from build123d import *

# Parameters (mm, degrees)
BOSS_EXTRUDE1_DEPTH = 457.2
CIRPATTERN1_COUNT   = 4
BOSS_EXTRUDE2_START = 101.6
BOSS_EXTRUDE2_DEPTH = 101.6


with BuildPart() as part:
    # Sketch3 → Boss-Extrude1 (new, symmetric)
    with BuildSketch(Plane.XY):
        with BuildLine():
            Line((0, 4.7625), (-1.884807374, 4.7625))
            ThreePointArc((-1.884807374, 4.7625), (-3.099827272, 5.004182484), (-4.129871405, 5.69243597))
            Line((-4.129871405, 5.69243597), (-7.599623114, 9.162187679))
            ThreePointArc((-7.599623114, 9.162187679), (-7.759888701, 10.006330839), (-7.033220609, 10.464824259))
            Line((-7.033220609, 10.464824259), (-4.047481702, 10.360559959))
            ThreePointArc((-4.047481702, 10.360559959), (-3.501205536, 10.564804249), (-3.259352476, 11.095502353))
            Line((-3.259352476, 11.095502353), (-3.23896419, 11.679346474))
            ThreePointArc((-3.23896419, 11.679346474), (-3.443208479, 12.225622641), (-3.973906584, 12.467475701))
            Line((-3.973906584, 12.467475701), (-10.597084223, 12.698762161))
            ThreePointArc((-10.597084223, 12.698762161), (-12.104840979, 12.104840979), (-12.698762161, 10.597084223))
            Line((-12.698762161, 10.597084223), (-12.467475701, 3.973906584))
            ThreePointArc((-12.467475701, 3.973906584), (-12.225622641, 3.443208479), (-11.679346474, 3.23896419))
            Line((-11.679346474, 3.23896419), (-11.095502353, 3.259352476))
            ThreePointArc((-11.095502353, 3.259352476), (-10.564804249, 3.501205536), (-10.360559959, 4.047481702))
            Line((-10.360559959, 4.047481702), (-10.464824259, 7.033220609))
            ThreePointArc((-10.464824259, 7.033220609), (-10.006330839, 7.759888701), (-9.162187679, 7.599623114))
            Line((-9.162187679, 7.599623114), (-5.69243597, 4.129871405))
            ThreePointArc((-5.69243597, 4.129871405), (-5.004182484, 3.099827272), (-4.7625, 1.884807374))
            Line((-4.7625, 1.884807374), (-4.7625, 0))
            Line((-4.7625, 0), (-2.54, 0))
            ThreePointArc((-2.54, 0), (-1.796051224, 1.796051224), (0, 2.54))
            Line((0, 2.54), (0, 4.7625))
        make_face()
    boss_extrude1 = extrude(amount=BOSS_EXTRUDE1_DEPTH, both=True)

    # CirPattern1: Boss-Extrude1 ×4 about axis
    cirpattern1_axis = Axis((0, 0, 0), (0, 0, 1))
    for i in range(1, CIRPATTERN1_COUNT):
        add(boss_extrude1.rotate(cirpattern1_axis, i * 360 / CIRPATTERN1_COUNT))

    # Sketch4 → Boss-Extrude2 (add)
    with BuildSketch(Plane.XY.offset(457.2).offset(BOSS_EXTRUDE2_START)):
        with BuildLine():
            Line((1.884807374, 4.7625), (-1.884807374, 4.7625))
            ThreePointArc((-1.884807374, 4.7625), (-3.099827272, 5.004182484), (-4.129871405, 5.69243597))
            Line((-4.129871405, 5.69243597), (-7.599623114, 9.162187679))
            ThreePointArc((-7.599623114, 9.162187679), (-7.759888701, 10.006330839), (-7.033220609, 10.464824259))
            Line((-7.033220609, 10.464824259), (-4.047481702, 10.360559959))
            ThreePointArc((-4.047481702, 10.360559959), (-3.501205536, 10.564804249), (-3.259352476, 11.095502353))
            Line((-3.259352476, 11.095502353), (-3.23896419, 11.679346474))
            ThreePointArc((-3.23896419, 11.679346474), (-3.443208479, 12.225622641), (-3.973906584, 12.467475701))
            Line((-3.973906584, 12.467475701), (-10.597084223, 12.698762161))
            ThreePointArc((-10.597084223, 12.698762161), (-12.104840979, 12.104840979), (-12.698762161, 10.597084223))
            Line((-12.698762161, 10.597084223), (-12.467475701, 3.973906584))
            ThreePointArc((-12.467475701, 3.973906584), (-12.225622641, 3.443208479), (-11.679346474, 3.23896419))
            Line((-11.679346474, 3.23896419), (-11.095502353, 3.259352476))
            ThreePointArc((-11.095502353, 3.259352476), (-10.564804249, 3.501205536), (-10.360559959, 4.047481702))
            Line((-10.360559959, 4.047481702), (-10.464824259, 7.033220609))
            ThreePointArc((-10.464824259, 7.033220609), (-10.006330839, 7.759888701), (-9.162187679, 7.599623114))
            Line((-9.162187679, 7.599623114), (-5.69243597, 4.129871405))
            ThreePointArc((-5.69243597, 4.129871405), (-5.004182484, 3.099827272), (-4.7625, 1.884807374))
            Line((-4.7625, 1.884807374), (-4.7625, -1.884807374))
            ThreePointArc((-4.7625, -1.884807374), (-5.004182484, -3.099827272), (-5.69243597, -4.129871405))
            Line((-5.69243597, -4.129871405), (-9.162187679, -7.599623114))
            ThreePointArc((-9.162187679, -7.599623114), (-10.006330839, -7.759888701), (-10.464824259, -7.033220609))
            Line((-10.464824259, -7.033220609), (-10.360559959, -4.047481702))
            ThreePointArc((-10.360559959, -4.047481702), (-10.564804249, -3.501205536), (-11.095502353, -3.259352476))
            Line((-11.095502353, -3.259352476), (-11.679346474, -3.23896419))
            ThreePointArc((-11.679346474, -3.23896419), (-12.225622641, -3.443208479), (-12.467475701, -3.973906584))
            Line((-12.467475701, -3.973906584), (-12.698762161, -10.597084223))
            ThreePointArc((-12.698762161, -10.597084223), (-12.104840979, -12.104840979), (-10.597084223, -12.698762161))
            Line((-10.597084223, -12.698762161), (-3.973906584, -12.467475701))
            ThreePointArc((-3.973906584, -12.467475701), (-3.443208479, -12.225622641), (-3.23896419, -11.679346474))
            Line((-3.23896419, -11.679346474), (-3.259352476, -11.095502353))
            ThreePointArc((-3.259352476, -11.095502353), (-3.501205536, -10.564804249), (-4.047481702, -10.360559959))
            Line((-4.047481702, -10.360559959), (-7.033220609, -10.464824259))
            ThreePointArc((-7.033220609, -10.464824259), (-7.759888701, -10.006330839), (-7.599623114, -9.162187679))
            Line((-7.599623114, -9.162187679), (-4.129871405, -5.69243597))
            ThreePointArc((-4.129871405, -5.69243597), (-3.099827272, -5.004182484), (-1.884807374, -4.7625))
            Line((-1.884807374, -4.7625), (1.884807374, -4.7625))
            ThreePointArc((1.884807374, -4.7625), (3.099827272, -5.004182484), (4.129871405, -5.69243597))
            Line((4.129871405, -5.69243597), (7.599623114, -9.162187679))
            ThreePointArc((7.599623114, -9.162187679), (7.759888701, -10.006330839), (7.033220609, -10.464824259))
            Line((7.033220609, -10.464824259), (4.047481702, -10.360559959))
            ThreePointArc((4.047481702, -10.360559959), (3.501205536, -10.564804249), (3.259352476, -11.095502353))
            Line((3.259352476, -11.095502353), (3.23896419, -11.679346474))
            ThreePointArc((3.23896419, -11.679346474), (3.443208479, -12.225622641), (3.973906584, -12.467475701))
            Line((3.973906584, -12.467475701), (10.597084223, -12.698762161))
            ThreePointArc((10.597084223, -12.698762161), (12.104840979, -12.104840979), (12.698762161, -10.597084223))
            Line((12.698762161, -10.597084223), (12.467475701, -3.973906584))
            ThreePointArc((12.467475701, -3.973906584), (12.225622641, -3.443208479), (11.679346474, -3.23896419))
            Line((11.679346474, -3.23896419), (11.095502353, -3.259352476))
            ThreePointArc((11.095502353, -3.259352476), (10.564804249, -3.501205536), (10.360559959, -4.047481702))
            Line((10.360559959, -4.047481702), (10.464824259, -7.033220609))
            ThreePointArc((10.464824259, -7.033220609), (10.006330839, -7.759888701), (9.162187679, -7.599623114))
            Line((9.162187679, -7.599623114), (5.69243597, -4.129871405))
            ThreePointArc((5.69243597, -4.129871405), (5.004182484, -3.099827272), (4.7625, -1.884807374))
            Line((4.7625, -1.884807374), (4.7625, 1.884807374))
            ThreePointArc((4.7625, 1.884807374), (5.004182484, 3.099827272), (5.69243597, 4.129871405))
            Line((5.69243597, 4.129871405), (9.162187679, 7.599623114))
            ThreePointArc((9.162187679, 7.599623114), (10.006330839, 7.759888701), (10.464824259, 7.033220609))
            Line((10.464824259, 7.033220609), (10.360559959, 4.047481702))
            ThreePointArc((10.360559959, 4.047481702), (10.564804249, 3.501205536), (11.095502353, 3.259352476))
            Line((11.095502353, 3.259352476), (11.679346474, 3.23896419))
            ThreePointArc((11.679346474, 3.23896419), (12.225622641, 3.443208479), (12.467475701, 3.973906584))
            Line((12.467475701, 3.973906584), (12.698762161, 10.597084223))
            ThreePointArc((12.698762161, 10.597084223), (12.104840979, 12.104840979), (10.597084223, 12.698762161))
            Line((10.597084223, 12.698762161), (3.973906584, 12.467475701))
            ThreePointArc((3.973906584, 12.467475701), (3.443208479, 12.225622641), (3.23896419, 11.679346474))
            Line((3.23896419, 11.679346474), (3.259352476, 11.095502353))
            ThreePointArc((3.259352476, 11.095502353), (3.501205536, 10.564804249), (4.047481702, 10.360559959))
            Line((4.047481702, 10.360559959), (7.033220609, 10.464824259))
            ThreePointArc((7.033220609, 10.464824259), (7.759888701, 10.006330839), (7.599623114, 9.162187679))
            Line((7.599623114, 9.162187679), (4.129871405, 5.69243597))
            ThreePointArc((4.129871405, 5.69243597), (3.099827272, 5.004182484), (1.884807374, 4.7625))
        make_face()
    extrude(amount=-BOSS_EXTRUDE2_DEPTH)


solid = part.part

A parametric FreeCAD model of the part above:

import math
import FreeCAD as App
import Part
import Sketcher

V = App.Vector
Q = App.Units.Quantity

doc = App.newDocument("Part")
params = doc.addObject("Spreadsheet::Sheet", "Params")
for row, (alias, value) in enumerate([
    ("sketch1_radius", "0.1 in"),
    ("sketch1_radius2", "0.03 in"),
    ("sketch1_radius3", "0.08 in"),
    ("sketch1_radius4", "0.125 in"),
    ("sketch1_length", "0.023 in"),
    ("pad1_length", "36 in"),
    ("sketch2_radius", "0.03 in"),
    ("sketch2_radius2", "0.08 in"),
    ("sketch2_radius3", "0.125 in"),
    ("sketch2_length", "0.023 in"),
    ("pad2_length", "4 in"),
], start=1):
    params.set(f"A{row}", alias)
    params.set(f"B{row}", "=" + value)
    params.setAlias(f"B{row}", alias)

body = doc.addObject("PartDesign::Body", "Body")

# Sketch on XY plane
sketch1 = body.newObject("Sketcher::SketchObject", "Sketch")
sketch1.AttachmentSupport = (doc.getObject("XY_Plane"), [""])
sketch1.MapMode = "FlatFace"
sketch1.addGeometry([
    Part.LineSegment(V(0, 4.8, 0), V(-1.9, 4.8, 0)),  # 0
    Part.ArcOfCircle(Part.Circle(V(-1.9, 7.9, 0), V(0, 0, 1), 3.2), math.radians(-135), math.radians(-90)),  # 1
    Part.LineSegment(V(-4.1, 5.7, 0), V(-7.6, 9.2, 0)),  # 2
    Part.ArcOfCircle(Part.Circle(V(-7.1, 9.7, 0), V(0, 0, 1), 0.8), math.radians(88), math.radians(225)),  # 3
    Part.LineSegment(V(-7, 10.5, 0), V(-4, 10.4, 0)),  # 4
    Part.ArcOfCircle(Part.Circle(V(-4, 11.1, 0), V(0, 0, 1), 0.8), math.radians(-92), math.radians(-2)),  # 5
    Part.LineSegment(V(-3.3, 11.1, 0), V(-3.2, 11.7, 0)),  # 6
    Part.ArcOfCircle(Part.Circle(V(-4, 11.7, 0), V(0, 0, 1), 0.8), math.radians(-2), math.radians(88)),  # 7
    Part.LineSegment(V(-4, 12.5, 0), V(-10.6, 12.7, 0)),  # 8
    Part.ArcOfCircle(Part.Circle(V(-10.7, 10.7, 0), V(0, 0, 1), 2), math.radians(88), math.radians(182)),  # 9
    Part.LineSegment(V(-12.7, 10.6, 0), V(-12.5, 4, 0)),  # 10
    Part.ArcOfCircle(Part.Circle(V(-11.7, 4, 0), V(0, 0, 1), 0.8), math.radians(-178), math.radians(-88)),  # 11
    Part.LineSegment(V(-11.7, 3.2, 0), V(-11.1, 3.3, 0)),  # 12
    Part.ArcOfCircle(Part.Circle(V(-11.1, 4, 0), V(0, 0, 1), 0.8), math.radians(-88), math.radians(2)),  # 13
    Part.LineSegment(V(-10.4, 4, 0), V(-10.5, 7, 0)),  # 14
    Part.ArcOfCircle(Part.Circle(V(-9.7, 7.1, 0), V(0, 0, 1), 0.8), math.radians(45), math.radians(182)),  # 15
    Part.LineSegment(V(-9.2, 7.6, 0), V(-5.7, 4.1, 0)),  # 16
    Part.ArcOfCircle(Part.Circle(V(-7.9, 1.9, 0), V(0, 0, 1), 3.2), math.radians(0), math.radians(45)),  # 17
    Part.LineSegment(V(-4.8, 1.9, 0), V(-4.8, 0, 0)),  # 18
    Part.LineSegment(V(-4.8, 0, 0), V(-2.5, 0, 0)),  # 19
    Part.ArcOfCircle(Part.Circle(V(0, 0, 0), V(0, 0, 1), 2.5), math.radians(90), math.radians(180)),  # 20
    Part.LineSegment(V(0, 2.5, 0), V(0, 4.8, 0)),  # 21
], False)
sketch1.addConstraint([
    Sketcher.Constraint("Tangent", 0, 2, 1, 2),
    Sketcher.Constraint("Tangent", 1, 1, 2, 1),
    Sketcher.Constraint("Tangent", 2, 2, 3, 2),
    Sketcher.Constraint("Tangent", 3, 1, 4, 1),
    Sketcher.Constraint("Tangent", 4, 2, 5, 1),
    Sketcher.Constraint("Tangent", 5, 2, 6, 1),
    Sketcher.Constraint("Tangent", 6, 2, 7, 1),
    Sketcher.Constraint("Tangent", 7, 2, 8, 1),
    Sketcher.Constraint("Tangent", 8, 2, 9, 1),
    Sketcher.Constraint("Tangent", 9, 2, 10, 1),
    Sketcher.Constraint("Tangent", 10, 2, 11, 1),
    Sketcher.Constraint("Tangent", 11, 2, 12, 1),
    Sketcher.Constraint("Tangent", 12, 2, 13, 1),
    Sketcher.Constraint("Tangent", 13, 2, 14, 1),
    Sketcher.Constraint("Tangent", 14, 2, 15, 2),
    Sketcher.Constraint("Tangent", 15, 1, 16, 1),
    Sketcher.Constraint("Tangent", 16, 2, 17, 2),
    Sketcher.Constraint("Tangent", 17, 1, 18, 1),
    Sketcher.Constraint("Coincident", 18, 2, 19, 1),
    Sketcher.Constraint("Coincident", 19, 2, 20, 2),
    Sketcher.Constraint("Coincident", 20, 1, 21, 1),
    Sketcher.Constraint("Coincident", 21, 2, 0, 1),
    Sketcher.Constraint("Horizontal", 0),
    Sketcher.Constraint("Vertical", 18),
    Sketcher.Constraint("Horizontal", 19),
    Sketcher.Constraint("Vertical", 21),
    Sketcher.Constraint("Coincident", 20, 3, -1, 1),
    Sketcher.Constraint("Equal", 5, 7),
    Sketcher.Constraint("Equal", 7, 11),
    Sketcher.Constraint("Equal", 11, 13),
    Sketcher.Constraint("Equal", 3, 15),
    Sketcher.Constraint("Equal", 1, 17),
    Sketcher.Constraint("PointOnObject", 18, 2, -1),
    Sketcher.Constraint("PointOnObject", 20, 1, -2),
    Sketcher.Constraint("Perpendicular", 4, 6),
    Sketcher.Constraint("Perpendicular", 6, 8),
    Sketcher.Constraint("Perpendicular", 10, 12),
    Sketcher.Constraint("Perpendicular", 12, 14),
    Sketcher.Constraint("Parallel", 2, 16),
    Sketcher.Constraint("Equal", 0, 18),
    Sketcher.Constraint("Equal", 19, 21),
    Sketcher.Constraint("Equal", 8, 10),
    Sketcher.Constraint("Equal", 6, 12),
    Sketcher.Constraint("Equal", 4, 14),
    Sketcher.Constraint("Equal", 2, 16),
    Sketcher.Constraint("Radius", 20, Q("0.1 in")),
    Sketcher.Constraint("Radius", 5, Q("0.03 in")),
    Sketcher.Constraint("Radius", 9, Q("0.08 in")),
    Sketcher.Constraint("Angle", 2, Q("135 deg")),
    Sketcher.Constraint("Angle", 4, Q("-2 deg")),
    Sketcher.Constraint("Radius", 1, Q("0.125 in")),
    Sketcher.Constraint("DistanceX", 9, 3, -1, 1, Q("0.42 in")),
    Sketcher.Constraint("Distance", 6, Q("0.023 in")),
    Sketcher.Constraint("DistanceX", 19, 1, 19, 2, Q("0.0875 in")),
    Sketcher.Constraint("Radius", 3, Q("0.763339 mm")),
    Sketcher.Constraint("DistanceY", 11, 3, 1, 3, Q("0.155 in")),
    Sketcher.Constraint("DistanceY", 15, 3, 8, 2, Q("5.638901 mm")),
])
sketch1.setExpression("Constraints[45]", "Params.sketch1_radius")
sketch1.setExpression("Constraints[46]", "Params.sketch1_radius2")
sketch1.setExpression("Constraints[47]", "Params.sketch1_radius3")
sketch1.setExpression("Constraints[50]", "Params.sketch1_radius4")
sketch1.setExpression("Constraints[52]", "Params.sketch1_length")
pad1 = body.newObject("PartDesign::Pad", "Pad")
pad1.Profile = sketch1
pad1.setExpression("Length", "Params.pad1_length")
pad1.Midplane = True
doc.recompute()

polarpattern = body.newObject("PartDesign::PolarPattern", "PolarPattern")
polarpattern.Originals = [pad1]
polarpattern.Axis = (doc.getObject("Z_Axis"), [""])
polarpattern.Angle = 360
polarpattern.Occurrences = 4
body.Tip = polarpattern

# Sketch on XY plane
sketch2 = body.newObject("Sketcher::SketchObject", "Sketch001")
sketch2.AttachmentSupport = (doc.getObject("XY_Plane"), [""])
sketch2.MapMode = "FlatFace"
sketch2.AttachmentOffset = App.Placement(V(0, 0, 22 * 25.4), App.Rotation())
sketch2.addGeometry([
    Part.LineSegment(V(1.9, 4.8, 0), V(-1.9, 4.8, 0)),  # 0
    Part.ArcOfCircle(Part.Circle(V(-1.9, 7.9, 0), V(0, 0, 1), 3.2), math.radians(-135), math.radians(-90)),  # 1
    Part.LineSegment(V(-4.1, 5.7, 0), V(-7.6, 9.2, 0)),  # 2
    Part.ArcOfCircle(Part.Circle(V(-7.1, 9.7, 0), V(0, 0, 1), 0.8), math.radians(88), math.radians(225)),  # 3
    Part.LineSegment(V(-7, 10.5, 0), V(-4, 10.4, 0)),  # 4
    Part.ArcOfCircle(Part.Circle(V(-4, 11.1, 0), V(0, 0, 1), 0.8), math.radians(-92), math.radians(-2)),  # 5
    Part.LineSegment(V(-3.3, 11.1, 0), V(-3.2, 11.7, 0)),  # 6
    Part.ArcOfCircle(Part.Circle(V(-4, 11.7, 0), V(0, 0, 1), 0.8), math.radians(-2), math.radians(88)),  # 7
    Part.LineSegment(V(-4, 12.5, 0), V(-10.6, 12.7, 0)),  # 8
    Part.ArcOfCircle(Part.Circle(V(-10.7, 10.7, 0), V(0, 0, 1), 2), math.radians(88), math.radians(182)),  # 9
    Part.LineSegment(V(-12.7, 10.6, 0), V(-12.5, 4, 0)),  # 10
    Part.ArcOfCircle(Part.Circle(V(-11.7, 4, 0), V(0, 0, 1), 0.8), math.radians(-178), math.radians(-88)),  # 11
    Part.LineSegment(V(-11.7, 3.2, 0), V(-11.1, 3.3, 0)),  # 12
    Part.ArcOfCircle(Part.Circle(V(-11.1, 4, 0), V(0, 0, 1), 0.8), math.radians(-88), math.radians(2)),  # 13
    Part.LineSegment(V(-10.4, 4, 0), V(-10.5, 7, 0)),  # 14
    Part.ArcOfCircle(Part.Circle(V(-9.7, 7.1, 0), V(0, 0, 1), 0.8), math.radians(45), math.radians(182)),  # 15
    Part.LineSegment(V(-9.2, 7.6, 0), V(-5.7, 4.1, 0)),  # 16
    Part.ArcOfCircle(Part.Circle(V(-7.9, 1.9, 0), V(0, 0, 1), 3.2), math.radians(0), math.radians(45)),  # 17
    Part.LineSegment(V(-4.8, 1.9, 0), V(-4.8, -1.9, 0)),  # 18
    Part.ArcOfCircle(Part.Circle(V(-7.9, -1.9, 0), V(0, 0, 1), 3.2), math.radians(-45), math.radians(0)),  # 19
    Part.LineSegment(V(-5.7, -4.1, 0), V(-9.2, -7.6, 0)),  # 20
    Part.ArcOfCircle(Part.Circle(V(-9.7, -7.1, 0), V(0, 0, 1), 0.8), math.radians(178), math.radians(315)),  # 21
    Part.LineSegment(V(-10.5, -7, 0), V(-10.4, -4, 0)),  # 22
    Part.ArcOfCircle(Part.Circle(V(-11.1, -4, 0), V(0, 0, 1), 0.8), math.radians(-2), math.radians(88)),  # 23
    Part.LineSegment(V(-11.1, -3.3, 0), V(-11.7, -3.2, 0)),  # 24
    Part.ArcOfCircle(Part.Circle(V(-11.7, -4, 0), V(0, 0, 1), 0.8), math.radians(88), math.radians(178)),  # 25
    Part.LineSegment(V(-12.5, -4, 0), V(-12.7, -10.6, 0)),  # 26
    Part.ArcOfCircle(Part.Circle(V(-10.7, -10.7, 0), V(0, 0, 1), 2), math.radians(178), math.radians(272)),  # 27
    Part.LineSegment(V(-10.6, -12.7, 0), V(-4, -12.5, 0)),  # 28
    Part.ArcOfCircle(Part.Circle(V(-4, -11.7, 0), V(0, 0, 1), 0.8), math.radians(-88), math.radians(2)),  # 29
    Part.LineSegment(V(-3.2, -11.7, 0), V(-3.3, -11.1, 0)),  # 30
    Part.ArcOfCircle(Part.Circle(V(-4, -11.1, 0), V(0, 0, 1), 0.8), math.radians(2), math.radians(92)),  # 31
    Part.LineSegment(V(-4, -10.4, 0), V(-7, -10.5, 0)),  # 32
    Part.ArcOfCircle(Part.Circle(V(-7.1, -9.7, 0), V(0, 0, 1), 0.8), math.radians(135), math.radians(272)),  # 33
    Part.LineSegment(V(-7.6, -9.2, 0), V(-4.1, -5.7, 0)),  # 34
    Part.ArcOfCircle(Part.Circle(V(-1.9, -7.9, 0), V(0, 0, 1), 3.2), math.radians(90), math.radians(135)),  # 35
    Part.LineSegment(V(-1.9, -4.8, 0), V(1.9, -4.8, 0)),  # 36
    Part.ArcOfCircle(Part.Circle(V(1.9, -7.9, 0), V(0, 0, 1), 3.2), math.radians(45), math.radians(90)),  # 37
    Part.LineSegment(V(4.1, -5.7, 0), V(7.6, -9.2, 0)),  # 38
    Part.ArcOfCircle(Part.Circle(V(7.1, -9.7, 0), V(0, 0, 1), 0.8), math.radians(-92), math.radians(45)),  # 39
    Part.LineSegment(V(7, -10.5, 0), V(4, -10.4, 0)),  # 40
    Part.ArcOfCircle(Part.Circle(V(4, -11.1, 0), V(0, 0, 1), 0.8), math.radians(88), math.radians(178)),  # 41
    Part.LineSegment(V(3.3, -11.1, 0), V(3.2, -11.7, 0)),  # 42
    Part.ArcOfCircle(Part.Circle(V(4, -11.7, 0), V(0, 0, 1), 0.8), math.radians(178), math.radians(268)),  # 43
    Part.LineSegment(V(4, -12.5, 0), V(10.6, -12.7, 0)),  # 44
    Part.ArcOfCircle(Part.Circle(V(10.7, -10.7, 0), V(0, 0, 1), 2), math.radians(-92), math.radians(2)),  # 45
    Part.LineSegment(V(12.7, -10.6, 0), V(12.5, -4, 0)),  # 46
    Part.ArcOfCircle(Part.Circle(V(11.7, -4, 0), V(0, 0, 1), 0.8), math.radians(2), math.radians(92)),  # 47
    Part.LineSegment(V(11.7, -3.2, 0), V(11.1, -3.3, 0)),  # 48
    Part.ArcOfCircle(Part.Circle(V(11.1, -4, 0), V(0, 0, 1), 0.8), math.radians(92), math.radians(182)),  # 49
    Part.LineSegment(V(10.4, -4, 0), V(10.5, -7, 0)),  # 50
    Part.ArcOfCircle(Part.Circle(V(9.7, -7.1, 0), V(0, 0, 1), 0.8), math.radians(-135), math.radians(2)),  # 51
    Part.LineSegment(V(9.2, -7.6, 0), V(5.7, -4.1, 0)),  # 52
    Part.ArcOfCircle(Part.Circle(V(7.9, -1.9, 0), V(0, 0, 1), 3.2), math.radians(180), math.radians(225)),  # 53
    Part.LineSegment(V(4.8, -1.9, 0), V(4.8, 1.9, 0)),  # 54
    Part.ArcOfCircle(Part.Circle(V(7.9, 1.9, 0), V(0, 0, 1), 3.2), math.radians(135), math.radians(180)),  # 55
    Part.LineSegment(V(5.7, 4.1, 0), V(9.2, 7.6, 0)),  # 56
    Part.ArcOfCircle(Part.Circle(V(9.7, 7.1, 0), V(0, 0, 1), 0.8), math.radians(-2), math.radians(135)),  # 57
    Part.LineSegment(V(10.5, 7, 0), V(10.4, 4, 0)),  # 58
    Part.ArcOfCircle(Part.Circle(V(11.1, 4, 0), V(0, 0, 1), 0.8), math.radians(178), math.radians(268)),  # 59
    Part.LineSegment(V(11.1, 3.3, 0), V(11.7, 3.2, 0)),  # 60
    Part.ArcOfCircle(Part.Circle(V(11.7, 4, 0), V(0, 0, 1), 0.8), math.radians(-92), math.radians(-2)),  # 61
    Part.LineSegment(V(12.5, 4, 0), V(12.7, 10.6, 0)),  # 62
    Part.ArcOfCircle(Part.Circle(V(10.7, 10.7, 0), V(0, 0, 1), 2), math.radians(-2), math.radians(92)),  # 63
    Part.LineSegment(V(10.6, 12.7, 0), V(4, 12.5, 0)),  # 64
    Part.ArcOfCircle(Part.Circle(V(4, 11.7, 0), V(0, 0, 1), 0.8), math.radians(92), math.radians(182)),  # 65
    Part.LineSegment(V(3.2, 11.7, 0), V(3.3, 11.1, 0)),  # 66
    Part.ArcOfCircle(Part.Circle(V(4, 11.1, 0), V(0, 0, 1), 0.8), math.radians(-178), math.radians(-88)),  # 67
    Part.LineSegment(V(4, 10.4, 0), V(7, 10.5, 0)),  # 68
    Part.ArcOfCircle(Part.Circle(V(7.1, 9.7, 0), V(0, 0, 1), 0.8), math.radians(-45), math.radians(92)),  # 69
    Part.LineSegment(V(7.6, 9.2, 0), V(4.1, 5.7, 0)),  # 70
    Part.ArcOfCircle(Part.Circle(V(1.9, 7.9, 0), V(0, 0, 1), 3.2), math.radians(-90), math.radians(-45)),  # 71
], False)
sketch2.addConstraint([
    Sketcher.Constraint("Tangent", 0, 2, 1, 2),
    Sketcher.Constraint("Tangent", 1, 1, 2, 1),
    Sketcher.Constraint("Tangent", 2, 2, 3, 2),
    Sketcher.Constraint("Tangent", 3, 1, 4, 1),
    Sketcher.Constraint("Tangent", 4, 2, 5, 1),
    Sketcher.Constraint("Tangent", 5, 2, 6, 1),
    Sketcher.Constraint("Tangent", 6, 2, 7, 1),
    Sketcher.Constraint("Tangent", 7, 2, 8, 1),
    Sketcher.Constraint("Tangent", 8, 2, 9, 1),
    Sketcher.Constraint("Tangent", 9, 2, 10, 1),
    Sketcher.Constraint("Tangent", 10, 2, 11, 1),
    Sketcher.Constraint("Tangent", 11, 2, 12, 1),
    Sketcher.Constraint("Tangent", 12, 2, 13, 1),
    Sketcher.Constraint("Tangent", 13, 2, 14, 1),
    Sketcher.Constraint("Tangent", 14, 2, 15, 2),
    Sketcher.Constraint("Tangent", 15, 1, 16, 1),
    Sketcher.Constraint("Tangent", 16, 2, 17, 2),
    Sketcher.Constraint("Tangent", 17, 1, 18, 1),
    Sketcher.Constraint("Tangent", 18, 2, 19, 2),
    Sketcher.Constraint("Tangent", 19, 1, 20, 1),
    Sketcher.Constraint("Tangent", 20, 2, 21, 2),
    Sketcher.Constraint("Tangent", 21, 1, 22, 1),
    Sketcher.Constraint("Tangent", 22, 2, 23, 1),
    Sketcher.Constraint("Tangent", 23, 2, 24, 1),
    Sketcher.Constraint("Tangent", 24, 2, 25, 1),
    Sketcher.Constraint("Tangent", 25, 2, 26, 1),
    Sketcher.Constraint("Tangent", 26, 2, 27, 1),
    Sketcher.Constraint("Tangent", 27, 2, 28, 1),
    Sketcher.Constraint("Tangent", 28, 2, 29, 1),
    Sketcher.Constraint("Tangent", 29, 2, 30, 1),
    Sketcher.Constraint("Tangent", 30, 2, 31, 1),
    Sketcher.Constraint("Tangent", 31, 2, 32, 1),
    Sketcher.Constraint("Tangent", 32, 2, 33, 2),
    Sketcher.Constraint("Tangent", 33, 1, 34, 1),
    Sketcher.Constraint("Tangent", 34, 2, 35, 2),
    Sketcher.Constraint("Tangent", 35, 1, 36, 1),
    Sketcher.Constraint("Tangent", 36, 2, 37, 2),
    Sketcher.Constraint("Tangent", 37, 1, 38, 1),
    Sketcher.Constraint("Tangent", 38, 2, 39, 2),
    Sketcher.Constraint("Tangent", 39, 1, 40, 1),
    Sketcher.Constraint("Tangent", 40, 2, 41, 1),
    Sketcher.Constraint("Tangent", 41, 2, 42, 1),
    Sketcher.Constraint("Tangent", 42, 2, 43, 1),
    Sketcher.Constraint("Tangent", 43, 2, 44, 1),
    Sketcher.Constraint("Tangent", 44, 2, 45, 1),
    Sketcher.Constraint("Tangent", 45, 2, 46, 1),
    Sketcher.Constraint("Tangent", 46, 2, 47, 1),
    Sketcher.Constraint("Tangent", 47, 2, 48, 1),
    Sketcher.Constraint("Tangent", 48, 2, 49, 1),
    Sketcher.Constraint("Tangent", 49, 2, 50, 1),
    Sketcher.Constraint("Tangent", 50, 2, 51, 2),
    Sketcher.Constraint("Tangent", 51, 1, 52, 1),
    Sketcher.Constraint("Tangent", 52, 2, 53, 2),
    Sketcher.Constraint("Tangent", 53, 1, 54, 1),
    Sketcher.Constraint("Tangent", 54, 2, 55, 2),
    Sketcher.Constraint("Tangent", 55, 1, 56, 1),
    Sketcher.Constraint("Tangent", 56, 2, 57, 2),
    Sketcher.Constraint("Tangent", 57, 1, 58, 1),
    Sketcher.Constraint("Tangent", 58, 2, 59, 1),
    Sketcher.Constraint("Tangent", 59, 2, 60, 1),
    Sketcher.Constraint("Tangent", 60, 2, 61, 1),
    Sketcher.Constraint("Tangent", 61, 2, 62, 1),
    Sketcher.Constraint("Tangent", 62, 2, 63, 1),
    Sketcher.Constraint("Tangent", 63, 2, 64, 1),
    Sketcher.Constraint("Tangent", 64, 2, 65, 1),
    Sketcher.Constraint("Tangent", 65, 2, 66, 1),
    Sketcher.Constraint("Tangent", 66, 2, 67, 1),
    Sketcher.Constraint("Tangent", 67, 2, 68, 1),
    Sketcher.Constraint("Tangent", 68, 2, 69, 2),
    Sketcher.Constraint("Tangent", 69, 1, 70, 1),
    Sketcher.Constraint("Tangent", 70, 2, 71, 2),
    Sketcher.Constraint("Tangent", 71, 1, 0, 1),
    Sketcher.Constraint("Horizontal", 0),
    Sketcher.Constraint("Vertical", 18),
    Sketcher.Constraint("Horizontal", 36),
    Sketcher.Constraint("Vertical", 54),
    Sketcher.Constraint("Equal", 5, 7),
    Sketcher.Constraint("Equal", 7, 11),
    Sketcher.Constraint("Equal", 11, 13),
    Sketcher.Constraint("Equal", 3, 15),
    Sketcher.Constraint("Equal", 1, 17),
    Sketcher.Constraint("Equal", 17, 19),
    Sketcher.Constraint("Equal", 15, 21),
    Sketcher.Constraint("Equal", 13, 23),
    Sketcher.Constraint("Equal", 23, 25),
    Sketcher.Constraint("Equal", 9, 27),
    Sketcher.Constraint("Equal", 25, 29),
    Sketcher.Constraint("Equal", 29, 31),
    Sketcher.Constraint("Equal", 21, 33),
    Sketcher.Constraint("Equal", 19, 35),
    Sketcher.Constraint("Equal", 35, 37),
    Sketcher.Constraint("Equal", 33, 39),
    Sketcher.Constraint("Equal", 31, 41),
    Sketcher.Constraint("Equal", 41, 43),
    Sketcher.Constraint("Equal", 27, 45),
    Sketcher.Constraint("Equal", 43, 47),
    Sketcher.Constraint("Equal", 47, 49),
    Sketcher.Constraint("Equal", 39, 51),
    Sketcher.Constraint("Equal", 37, 53),
    Sketcher.Constraint("Equal", 53, 55),
    Sketcher.Constraint("Equal", 51, 57),
    Sketcher.Constraint("Equal", 49, 59),
    Sketcher.Constraint("Equal", 59, 61),
    Sketcher.Constraint("Equal", 45, 63),
    Sketcher.Constraint("Equal", 61, 65),
    Sketcher.Constraint("Equal", 65, 67),
    Sketcher.Constraint("Equal", 57, 69),
    Sketcher.Constraint("Equal", 55, 71),
    Sketcher.Constraint("Symmetric", 1, 3, 37, 3, -1, 1),
    Sketcher.Constraint("Symmetric", 3, 3, 39, 3, -1, 1),
    Sketcher.Constraint("Symmetric", 5, 3, 41, 3, -1, 1),
    Sketcher.Constraint("Symmetric", 7, 3, 43, 3, -1, 1),
    Sketcher.Constraint("Symmetric", 9, 3, 45, 3, -1, 1),
    Sketcher.Constraint("Symmetric", 11, 3, 47, 3, -1, 1),
    Sketcher.Constraint("Symmetric", 13, 3, 49, 3, -1, 1),
    Sketcher.Constraint("Symmetric", 15, 3, 51, 3, -1, 1),
    Sketcher.Constraint("Symmetric", 17, 3, 53, 3, -1, 1),
    Sketcher.Constraint("Symmetric", 21, 3, 57, 3, -1, 1),
    Sketcher.Constraint("Symmetric", 23, 3, 59, 3, -1, 1),
    Sketcher.Constraint("Symmetric", 25, 3, 61, 3, -1, 1),
    Sketcher.Constraint("Symmetric", 27, 3, 63, 3, -1, 1),
    Sketcher.Constraint("Symmetric", 29, 3, 65, 3, -1, 1),
    Sketcher.Constraint("Symmetric", 31, 3, 67, 3, -1, 1),
    Sketcher.Constraint("Symmetric", 33, 3, 69, 3, -1, 1),
    Sketcher.Constraint("Symmetric", 33, 3, 39, 3, -2),
    Sketcher.Constraint("Symmetric", 31, 3, 41, 3, -2),
    Sketcher.Constraint("Symmetric", 29, 3, 43, 3, -2),
    Sketcher.Constraint("Symmetric", 27, 3, 45, 3, -2),
    Sketcher.Constraint("Symmetric", 25, 3, 47, 3, -2),
    Sketcher.Constraint("Symmetric", 23, 3, 49, 3, -2),
    Sketcher.Constraint("Symmetric", 21, 3, 51, 3, -2),
    Sketcher.Constraint("Perpendicular", 4, 6),
    Sketcher.Constraint("Perpendicular", 6, 8),
    Sketcher.Constraint("Perpendicular", 10, 12),
    Sketcher.Constraint("Perpendicular", 12, 14),
    Sketcher.Constraint("Parallel", 2, 16),
    Sketcher.Constraint("Perpendicular", 16, 20),
    Sketcher.Constraint("Perpendicular", 8, 22),
    Sketcher.Constraint("Parallel", 20, 34),
    Sketcher.Constraint("Perpendicular", 52, 56),
    Sketcher.Constraint("Parallel", 56, 70),
    Sketcher.Constraint("Horizontal", 19, 3, 53, 3),
    Sketcher.Constraint("Equal", 36, 18),
    Sketcher.Constraint("Equal", 8, 10),
    Sketcher.Constraint("Equal", 6, 12),
    Sketcher.Constraint("Equal", 4, 14),
    Sketcher.Constraint("Equal", 2, 16),
    Sketcher.Constraint("Radius", 5, Q("0.03 in")),
    Sketcher.Constraint("Radius", 9, Q("0.08 in")),
    Sketcher.Constraint("Angle", 4, Q("-2 deg")),
    Sketcher.Constraint("Radius", 1, Q("0.125 in")),
    Sketcher.Constraint("DistanceX", 9, 3, -1, 1, Q("0.42 in")),
    Sketcher.Constraint("Distance", 6, Q("0.023 in")),
    Sketcher.Constraint("DistanceY", -1, 1, 1, 3, Q("0.3125 in")),
    Sketcher.Constraint("Radius", 3, Q("0.763339 mm")),
    Sketcher.Constraint("DistanceX", 7, 3, -1, 1, Q("0.1575 in")),
    Sketcher.Constraint("Distance", 2, Q("4.90697 mm")),
])
sketch2.setExpression("Constraints[147]", "Params.sketch2_radius")
sketch2.setExpression("Constraints[148]", "Params.sketch2_radius2")
sketch2.setExpression("Constraints[150]", "Params.sketch2_radius3")
sketch2.setExpression("Constraints[152]", "Params.sketch2_length")
pad2 = body.newObject("PartDesign::Pad", "Pad001")
pad2.Profile = sketch2
pad2.setExpression("Length", "Params.pad2_length")
pad2.Reversed = True

doc.recompute()
